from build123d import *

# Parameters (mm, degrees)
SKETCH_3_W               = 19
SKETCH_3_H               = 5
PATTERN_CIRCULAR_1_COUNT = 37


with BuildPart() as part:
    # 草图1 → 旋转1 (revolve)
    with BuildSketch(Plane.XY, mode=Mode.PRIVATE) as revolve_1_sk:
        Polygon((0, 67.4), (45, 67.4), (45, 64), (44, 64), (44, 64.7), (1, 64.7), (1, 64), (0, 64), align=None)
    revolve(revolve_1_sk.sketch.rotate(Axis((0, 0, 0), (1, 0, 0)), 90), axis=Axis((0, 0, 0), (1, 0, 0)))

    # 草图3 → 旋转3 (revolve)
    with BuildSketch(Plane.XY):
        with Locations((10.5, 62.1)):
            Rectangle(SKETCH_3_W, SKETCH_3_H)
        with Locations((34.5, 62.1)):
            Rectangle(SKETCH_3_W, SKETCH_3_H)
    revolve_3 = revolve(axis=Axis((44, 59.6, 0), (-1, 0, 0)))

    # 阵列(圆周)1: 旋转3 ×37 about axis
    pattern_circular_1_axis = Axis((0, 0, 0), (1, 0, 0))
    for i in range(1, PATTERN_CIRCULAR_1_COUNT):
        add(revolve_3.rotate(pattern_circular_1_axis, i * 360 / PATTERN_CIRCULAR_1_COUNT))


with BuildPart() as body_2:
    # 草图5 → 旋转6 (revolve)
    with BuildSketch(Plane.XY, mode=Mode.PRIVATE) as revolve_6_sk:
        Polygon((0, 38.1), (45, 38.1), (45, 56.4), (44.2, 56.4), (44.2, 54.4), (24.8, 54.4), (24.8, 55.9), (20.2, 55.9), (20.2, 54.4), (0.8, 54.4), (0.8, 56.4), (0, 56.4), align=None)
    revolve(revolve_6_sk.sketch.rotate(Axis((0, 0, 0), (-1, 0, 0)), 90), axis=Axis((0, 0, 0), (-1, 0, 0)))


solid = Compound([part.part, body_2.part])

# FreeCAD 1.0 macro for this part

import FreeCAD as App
import Part
import Sketcher


def add_polygon(sketch, points):
    """Adds a closed chain of lines whose ends are joined by coincident constraints."""
    first, n = sketch.GeometryCount, len(points)
    for a, b in zip(points, points[1:] + points[:1]):
        sketch.addGeometry(Part.LineSegment(App.Vector(*a, 0), App.Vector(*b, 0)), False)
    for i in range(n):
        sketch.addConstraint(Sketcher.Constraint("Coincident", first + i, 2, first + (i + 1) % n, 1))

doc = App.newDocument("Part")
params = doc.addObject("Spreadsheet::Sheet", "Params")
for row, (alias, value) in enumerate([
    ("sketch1_width", "45 mm"),
    ("sketch1_width2", "1 mm"),
    ("sketch1_height", "3.4 mm"),
    ("sketch1_height2", "0.7 mm"),
    ("revolution_angle", "360 deg"),
    ("sketch2_width", "19 mm"),
    ("sketch2_width2", "43 mm"),
    ("sketch2_height", "5 mm"),
    ("revolution2_angle", "360 deg"),
    ("sketch3_width", "45 mm"),
    ("sketch3_height", "2 mm"),
    ("sketch3_width2", "0.8 mm"),
    ("sketch3_width3", "19.4 mm"),
    ("sketch3_height2", "18.3 mm"),
    ("revolution3_angle", "360 deg"),
], start=1):
    params.set(f"A{row}", alias)
    params.set(f"B{row}", "=" + value)
    params.setAlias(f"B{row}", alias)

body = doc.addObject("PartDesign::Body", "Body")

# Sketch on XY plane
sketch1 = body.newObject("Sketcher::SketchObject", "Sketch")
sketch1.AttachmentSupport = (doc.getObject("XY_Plane"), [""])
sketch1.MapMode = "FlatFace"
add_polygon(sketch1, [(45, 67.4), (0, 67.4), (0, 64), (1, 64), (1, 64.7), (44, 64.7), (44, 64), (45, 64)])  # lines 0-7
sketch1.addConstraint([
    Sketcher.Constraint("Horizontal", 0),
    Sketcher.Constraint("Vertical", 1),
    Sketcher.Constraint("Horizontal", 2),
    Sketcher.Constraint("Vertical", 3),
    Sketcher.Constraint("Horizontal", 4),
    Sketcher.Constraint("Vertical", 5),
    Sketcher.Constraint("Horizontal", 6),
    Sketcher.Constraint("Vertical", 7),
    Sketcher.Constraint("PointOnObject", 0, 2, -2),
    Sketcher.Constraint("Horizontal", 2, 2, 5, 2),
    Sketcher.Constraint("Equal", 2, 6),
    Sketcher.Constraint("DistanceX", 0, 2, 0, 1, 45.0),
    Sketcher.Constraint("DistanceX", 2, 1, 2, 2, 1.0),
    Sketcher.Constraint("DistanceY", 1, 2, 1, 1, 3.4),
    Sketcher.Constraint("DistanceY", 3, 1, 3, 2, 0.7),
    Sketcher.Constraint("DistanceY", -1, 1, 1, 2, 64.0),
])
sketch1.setExpression("Constraints[19]", "Params.sketch1_width")
sketch1.setExpression("Constraints[20]", "Params.sketch1_width2")
sketch1.setExpression("Constraints[21]", "Params.sketch1_height")
sketch1.setExpression("Constraints[22]", "Params.sketch1_height2")
revolution = body.newObject("PartDesign::Revolution", "Revolution")
revolution.Profile = sketch1
revolution.ReferenceAxis = (sketch1, ["H_Axis"])
revolution.setExpression("Angle", "Params.revolution_angle")

# Sketch on XY plane
sketch2 = body.newObject("Sketcher::SketchObject", "Sketch001")
sketch2.AttachmentSupport = (doc.getObject("XY_Plane"), [""])
sketch2.MapMode = "FlatFace"
add_polygon(sketch2, [(1, 64.6), (1, 59.6), (20, 59.6), (20, 64.6)])  # lines 0-3
add_polygon(sketch2, [(25, 64.6), (25, 59.6), (44, 59.6), (44, 64.6)])  # lines 4-7
sketch2.addGeometry(Part.LineSegment(App.Vector(44, 59.6, 0), App.Vector(1, 59.6, 0)), True)  # axis
sketch2.addConstraint([
    Sketcher.Constraint("Vertical", 0),
    Sketcher.Constraint("Horizontal", 1),
    Sketcher.Constraint("Vertical", 2),
    Sketcher.Constraint("Horizontal", 3),
    Sketcher.Constraint("Vertical", 4),
    Sketcher.Constraint("Horizontal", 5),
    Sketcher.Constraint("Vertical", 6),
    Sketcher.Constraint("Horizontal", 7),
    Sketcher.Constraint("Horizontal", 8),
    Sketcher.Constraint("Coincident", 8, 1, 5, 2),
    Sketcher.Constraint("Coincident", 8, 2, 0, 2),
    Sketcher.Constraint("Horizontal", 3, 2, 6, 2),
    Sketcher.Constraint("Equal", 3, 5),
    Sketcher.Constraint("DistanceX", 1, 1, 1, 2, 19.0),
    Sketcher.Constraint("DistanceX", 8, 2, 8, 1, 43.0),
    Sketcher.Constraint("DistanceY", 0, 2, 0, 1, 5.0),
    Sketcher.Constraint("DistanceX", -1, 1, 0, 2, 1.0),
    Sketcher.Constraint("DistanceY", -1, 1, 0, 2, 59.6),
])
sketch2.setExpression("Constraints[21]", "Params.sketch2_width")
sketch2.setExpression("Constraints[22]", "Params.sketch2_width2")
sketch2.setExpression("Constraints[23]", "Params.sketch2_height")
revolution2 = body.newObject("PartDesign::Revolution", "Revolution001")
revolution2.Profile = sketch2
revolution2.ReferenceAxis = (sketch2, ["Axis0"])
revolution2.setExpression("Angle", "Params.revolution2_angle")
doc.recompute()

polarpattern = body.newObject("PartDesign::PolarPattern", "PolarPattern")
polarpattern.Originals = [revolution2]
polarpattern.Axis = (doc.getObject("X_Axis"), [""])
polarpattern.Angle = 360
polarpattern.Occurrences = 37
body.Tip = polarpattern
body2 = doc.addObject("PartDesign::Body", "Body001")

# Sketch on XY plane
sketch3 = body2.newObject("Sketcher::SketchObject", "Sketch002")
sketch3.AttachmentSupport = (doc.getObject("XY_Plane001"), [""])
sketch3.MapMode = "FlatFace"
add_polygon(sketch3, [(0, 38.1), (45, 38.1), (45, 56.4), (44.2, 56.4), (44.2, 54.4), (24.8, 54.4), (24.8, 55.9), (20.2, 55.9), (20.2, 54.4), (0.8, 54.4), (0.8, 56.4), (0, 56.4)])  # lines 0-11
sketch3.addConstraint([
    Sketcher.Constraint("Horizontal", 0),
    Sketcher.Constraint("Vertical", 1),
    Sketcher.Constraint("Horizontal", 2),
    Sketcher.Constraint("Vertical", 3),
    Sketcher.Constraint("Horizontal", 4),
    Sketcher.Constraint("Vertical", 5),
    Sketcher.Constraint("Horizontal", 6),
    Sketcher.Constraint("Vertical", 7),
    Sketcher.Constraint("Horizontal", 8),
    Sketcher.Constraint("Vertical", 9),
    Sketcher.Constraint("Horizontal", 10),
    Sketcher.Constraint("Vertical", 11),
    Sketcher.Constraint("PointOnObject", 10, 2, -2),
    Sketcher.Constraint("Horizontal", 4, 2, 7, 2),
    Sketcher.Constraint("Horizontal", 2, 2, 9, 2),
    Sketcher.Constraint("Equal", 4, 8),
    Sketcher.Constraint("Equal", 2, 10),
    Sketcher.Constraint("DistanceX", 0, 1, 0, 2, 45.0),
    Sketcher.Constraint("DistanceY", 3, 2, 3, 1, 2.0),
    Sketcher.Constraint("DistanceX", 2, 2, 2, 1, 0.8),
    Sketcher.Constraint("DistanceX", 4, 2, 4, 1, 19.4),
    Sketcher.Constraint("DistanceY", 1, 1, 1, 2, 18.3),
    Sketcher.Constraint("DistanceY", 5, 1, 5, 2, 1.5),
    Sketcher.Constraint("DistanceY", -1, 1, 0, 2, 38.1),
])
sketch3.setExpression("Constraints[29]", "Params.sketch3_width")
sketch3.setExpression("Constraints[30]", "Params.sketch3_height")
sketch3.setExpression("Constraints[31]", "Params.sketch3_width2")
sketch3.setExpression("Constraints[32]", "Params.sketch3_width3")
sketch3.setExpression("Constraints[33]", "Params.sketch3_height2")
revolution3 = body2.newObject("PartDesign::Revolution", "Revolution002")
revolution3.Profile = sketch3
revolution3.ReferenceAxis = (sketch3, ["H_Axis"])
revolution3.setExpression("Angle", "Params.revolution3_angle")

doc.recompute()
